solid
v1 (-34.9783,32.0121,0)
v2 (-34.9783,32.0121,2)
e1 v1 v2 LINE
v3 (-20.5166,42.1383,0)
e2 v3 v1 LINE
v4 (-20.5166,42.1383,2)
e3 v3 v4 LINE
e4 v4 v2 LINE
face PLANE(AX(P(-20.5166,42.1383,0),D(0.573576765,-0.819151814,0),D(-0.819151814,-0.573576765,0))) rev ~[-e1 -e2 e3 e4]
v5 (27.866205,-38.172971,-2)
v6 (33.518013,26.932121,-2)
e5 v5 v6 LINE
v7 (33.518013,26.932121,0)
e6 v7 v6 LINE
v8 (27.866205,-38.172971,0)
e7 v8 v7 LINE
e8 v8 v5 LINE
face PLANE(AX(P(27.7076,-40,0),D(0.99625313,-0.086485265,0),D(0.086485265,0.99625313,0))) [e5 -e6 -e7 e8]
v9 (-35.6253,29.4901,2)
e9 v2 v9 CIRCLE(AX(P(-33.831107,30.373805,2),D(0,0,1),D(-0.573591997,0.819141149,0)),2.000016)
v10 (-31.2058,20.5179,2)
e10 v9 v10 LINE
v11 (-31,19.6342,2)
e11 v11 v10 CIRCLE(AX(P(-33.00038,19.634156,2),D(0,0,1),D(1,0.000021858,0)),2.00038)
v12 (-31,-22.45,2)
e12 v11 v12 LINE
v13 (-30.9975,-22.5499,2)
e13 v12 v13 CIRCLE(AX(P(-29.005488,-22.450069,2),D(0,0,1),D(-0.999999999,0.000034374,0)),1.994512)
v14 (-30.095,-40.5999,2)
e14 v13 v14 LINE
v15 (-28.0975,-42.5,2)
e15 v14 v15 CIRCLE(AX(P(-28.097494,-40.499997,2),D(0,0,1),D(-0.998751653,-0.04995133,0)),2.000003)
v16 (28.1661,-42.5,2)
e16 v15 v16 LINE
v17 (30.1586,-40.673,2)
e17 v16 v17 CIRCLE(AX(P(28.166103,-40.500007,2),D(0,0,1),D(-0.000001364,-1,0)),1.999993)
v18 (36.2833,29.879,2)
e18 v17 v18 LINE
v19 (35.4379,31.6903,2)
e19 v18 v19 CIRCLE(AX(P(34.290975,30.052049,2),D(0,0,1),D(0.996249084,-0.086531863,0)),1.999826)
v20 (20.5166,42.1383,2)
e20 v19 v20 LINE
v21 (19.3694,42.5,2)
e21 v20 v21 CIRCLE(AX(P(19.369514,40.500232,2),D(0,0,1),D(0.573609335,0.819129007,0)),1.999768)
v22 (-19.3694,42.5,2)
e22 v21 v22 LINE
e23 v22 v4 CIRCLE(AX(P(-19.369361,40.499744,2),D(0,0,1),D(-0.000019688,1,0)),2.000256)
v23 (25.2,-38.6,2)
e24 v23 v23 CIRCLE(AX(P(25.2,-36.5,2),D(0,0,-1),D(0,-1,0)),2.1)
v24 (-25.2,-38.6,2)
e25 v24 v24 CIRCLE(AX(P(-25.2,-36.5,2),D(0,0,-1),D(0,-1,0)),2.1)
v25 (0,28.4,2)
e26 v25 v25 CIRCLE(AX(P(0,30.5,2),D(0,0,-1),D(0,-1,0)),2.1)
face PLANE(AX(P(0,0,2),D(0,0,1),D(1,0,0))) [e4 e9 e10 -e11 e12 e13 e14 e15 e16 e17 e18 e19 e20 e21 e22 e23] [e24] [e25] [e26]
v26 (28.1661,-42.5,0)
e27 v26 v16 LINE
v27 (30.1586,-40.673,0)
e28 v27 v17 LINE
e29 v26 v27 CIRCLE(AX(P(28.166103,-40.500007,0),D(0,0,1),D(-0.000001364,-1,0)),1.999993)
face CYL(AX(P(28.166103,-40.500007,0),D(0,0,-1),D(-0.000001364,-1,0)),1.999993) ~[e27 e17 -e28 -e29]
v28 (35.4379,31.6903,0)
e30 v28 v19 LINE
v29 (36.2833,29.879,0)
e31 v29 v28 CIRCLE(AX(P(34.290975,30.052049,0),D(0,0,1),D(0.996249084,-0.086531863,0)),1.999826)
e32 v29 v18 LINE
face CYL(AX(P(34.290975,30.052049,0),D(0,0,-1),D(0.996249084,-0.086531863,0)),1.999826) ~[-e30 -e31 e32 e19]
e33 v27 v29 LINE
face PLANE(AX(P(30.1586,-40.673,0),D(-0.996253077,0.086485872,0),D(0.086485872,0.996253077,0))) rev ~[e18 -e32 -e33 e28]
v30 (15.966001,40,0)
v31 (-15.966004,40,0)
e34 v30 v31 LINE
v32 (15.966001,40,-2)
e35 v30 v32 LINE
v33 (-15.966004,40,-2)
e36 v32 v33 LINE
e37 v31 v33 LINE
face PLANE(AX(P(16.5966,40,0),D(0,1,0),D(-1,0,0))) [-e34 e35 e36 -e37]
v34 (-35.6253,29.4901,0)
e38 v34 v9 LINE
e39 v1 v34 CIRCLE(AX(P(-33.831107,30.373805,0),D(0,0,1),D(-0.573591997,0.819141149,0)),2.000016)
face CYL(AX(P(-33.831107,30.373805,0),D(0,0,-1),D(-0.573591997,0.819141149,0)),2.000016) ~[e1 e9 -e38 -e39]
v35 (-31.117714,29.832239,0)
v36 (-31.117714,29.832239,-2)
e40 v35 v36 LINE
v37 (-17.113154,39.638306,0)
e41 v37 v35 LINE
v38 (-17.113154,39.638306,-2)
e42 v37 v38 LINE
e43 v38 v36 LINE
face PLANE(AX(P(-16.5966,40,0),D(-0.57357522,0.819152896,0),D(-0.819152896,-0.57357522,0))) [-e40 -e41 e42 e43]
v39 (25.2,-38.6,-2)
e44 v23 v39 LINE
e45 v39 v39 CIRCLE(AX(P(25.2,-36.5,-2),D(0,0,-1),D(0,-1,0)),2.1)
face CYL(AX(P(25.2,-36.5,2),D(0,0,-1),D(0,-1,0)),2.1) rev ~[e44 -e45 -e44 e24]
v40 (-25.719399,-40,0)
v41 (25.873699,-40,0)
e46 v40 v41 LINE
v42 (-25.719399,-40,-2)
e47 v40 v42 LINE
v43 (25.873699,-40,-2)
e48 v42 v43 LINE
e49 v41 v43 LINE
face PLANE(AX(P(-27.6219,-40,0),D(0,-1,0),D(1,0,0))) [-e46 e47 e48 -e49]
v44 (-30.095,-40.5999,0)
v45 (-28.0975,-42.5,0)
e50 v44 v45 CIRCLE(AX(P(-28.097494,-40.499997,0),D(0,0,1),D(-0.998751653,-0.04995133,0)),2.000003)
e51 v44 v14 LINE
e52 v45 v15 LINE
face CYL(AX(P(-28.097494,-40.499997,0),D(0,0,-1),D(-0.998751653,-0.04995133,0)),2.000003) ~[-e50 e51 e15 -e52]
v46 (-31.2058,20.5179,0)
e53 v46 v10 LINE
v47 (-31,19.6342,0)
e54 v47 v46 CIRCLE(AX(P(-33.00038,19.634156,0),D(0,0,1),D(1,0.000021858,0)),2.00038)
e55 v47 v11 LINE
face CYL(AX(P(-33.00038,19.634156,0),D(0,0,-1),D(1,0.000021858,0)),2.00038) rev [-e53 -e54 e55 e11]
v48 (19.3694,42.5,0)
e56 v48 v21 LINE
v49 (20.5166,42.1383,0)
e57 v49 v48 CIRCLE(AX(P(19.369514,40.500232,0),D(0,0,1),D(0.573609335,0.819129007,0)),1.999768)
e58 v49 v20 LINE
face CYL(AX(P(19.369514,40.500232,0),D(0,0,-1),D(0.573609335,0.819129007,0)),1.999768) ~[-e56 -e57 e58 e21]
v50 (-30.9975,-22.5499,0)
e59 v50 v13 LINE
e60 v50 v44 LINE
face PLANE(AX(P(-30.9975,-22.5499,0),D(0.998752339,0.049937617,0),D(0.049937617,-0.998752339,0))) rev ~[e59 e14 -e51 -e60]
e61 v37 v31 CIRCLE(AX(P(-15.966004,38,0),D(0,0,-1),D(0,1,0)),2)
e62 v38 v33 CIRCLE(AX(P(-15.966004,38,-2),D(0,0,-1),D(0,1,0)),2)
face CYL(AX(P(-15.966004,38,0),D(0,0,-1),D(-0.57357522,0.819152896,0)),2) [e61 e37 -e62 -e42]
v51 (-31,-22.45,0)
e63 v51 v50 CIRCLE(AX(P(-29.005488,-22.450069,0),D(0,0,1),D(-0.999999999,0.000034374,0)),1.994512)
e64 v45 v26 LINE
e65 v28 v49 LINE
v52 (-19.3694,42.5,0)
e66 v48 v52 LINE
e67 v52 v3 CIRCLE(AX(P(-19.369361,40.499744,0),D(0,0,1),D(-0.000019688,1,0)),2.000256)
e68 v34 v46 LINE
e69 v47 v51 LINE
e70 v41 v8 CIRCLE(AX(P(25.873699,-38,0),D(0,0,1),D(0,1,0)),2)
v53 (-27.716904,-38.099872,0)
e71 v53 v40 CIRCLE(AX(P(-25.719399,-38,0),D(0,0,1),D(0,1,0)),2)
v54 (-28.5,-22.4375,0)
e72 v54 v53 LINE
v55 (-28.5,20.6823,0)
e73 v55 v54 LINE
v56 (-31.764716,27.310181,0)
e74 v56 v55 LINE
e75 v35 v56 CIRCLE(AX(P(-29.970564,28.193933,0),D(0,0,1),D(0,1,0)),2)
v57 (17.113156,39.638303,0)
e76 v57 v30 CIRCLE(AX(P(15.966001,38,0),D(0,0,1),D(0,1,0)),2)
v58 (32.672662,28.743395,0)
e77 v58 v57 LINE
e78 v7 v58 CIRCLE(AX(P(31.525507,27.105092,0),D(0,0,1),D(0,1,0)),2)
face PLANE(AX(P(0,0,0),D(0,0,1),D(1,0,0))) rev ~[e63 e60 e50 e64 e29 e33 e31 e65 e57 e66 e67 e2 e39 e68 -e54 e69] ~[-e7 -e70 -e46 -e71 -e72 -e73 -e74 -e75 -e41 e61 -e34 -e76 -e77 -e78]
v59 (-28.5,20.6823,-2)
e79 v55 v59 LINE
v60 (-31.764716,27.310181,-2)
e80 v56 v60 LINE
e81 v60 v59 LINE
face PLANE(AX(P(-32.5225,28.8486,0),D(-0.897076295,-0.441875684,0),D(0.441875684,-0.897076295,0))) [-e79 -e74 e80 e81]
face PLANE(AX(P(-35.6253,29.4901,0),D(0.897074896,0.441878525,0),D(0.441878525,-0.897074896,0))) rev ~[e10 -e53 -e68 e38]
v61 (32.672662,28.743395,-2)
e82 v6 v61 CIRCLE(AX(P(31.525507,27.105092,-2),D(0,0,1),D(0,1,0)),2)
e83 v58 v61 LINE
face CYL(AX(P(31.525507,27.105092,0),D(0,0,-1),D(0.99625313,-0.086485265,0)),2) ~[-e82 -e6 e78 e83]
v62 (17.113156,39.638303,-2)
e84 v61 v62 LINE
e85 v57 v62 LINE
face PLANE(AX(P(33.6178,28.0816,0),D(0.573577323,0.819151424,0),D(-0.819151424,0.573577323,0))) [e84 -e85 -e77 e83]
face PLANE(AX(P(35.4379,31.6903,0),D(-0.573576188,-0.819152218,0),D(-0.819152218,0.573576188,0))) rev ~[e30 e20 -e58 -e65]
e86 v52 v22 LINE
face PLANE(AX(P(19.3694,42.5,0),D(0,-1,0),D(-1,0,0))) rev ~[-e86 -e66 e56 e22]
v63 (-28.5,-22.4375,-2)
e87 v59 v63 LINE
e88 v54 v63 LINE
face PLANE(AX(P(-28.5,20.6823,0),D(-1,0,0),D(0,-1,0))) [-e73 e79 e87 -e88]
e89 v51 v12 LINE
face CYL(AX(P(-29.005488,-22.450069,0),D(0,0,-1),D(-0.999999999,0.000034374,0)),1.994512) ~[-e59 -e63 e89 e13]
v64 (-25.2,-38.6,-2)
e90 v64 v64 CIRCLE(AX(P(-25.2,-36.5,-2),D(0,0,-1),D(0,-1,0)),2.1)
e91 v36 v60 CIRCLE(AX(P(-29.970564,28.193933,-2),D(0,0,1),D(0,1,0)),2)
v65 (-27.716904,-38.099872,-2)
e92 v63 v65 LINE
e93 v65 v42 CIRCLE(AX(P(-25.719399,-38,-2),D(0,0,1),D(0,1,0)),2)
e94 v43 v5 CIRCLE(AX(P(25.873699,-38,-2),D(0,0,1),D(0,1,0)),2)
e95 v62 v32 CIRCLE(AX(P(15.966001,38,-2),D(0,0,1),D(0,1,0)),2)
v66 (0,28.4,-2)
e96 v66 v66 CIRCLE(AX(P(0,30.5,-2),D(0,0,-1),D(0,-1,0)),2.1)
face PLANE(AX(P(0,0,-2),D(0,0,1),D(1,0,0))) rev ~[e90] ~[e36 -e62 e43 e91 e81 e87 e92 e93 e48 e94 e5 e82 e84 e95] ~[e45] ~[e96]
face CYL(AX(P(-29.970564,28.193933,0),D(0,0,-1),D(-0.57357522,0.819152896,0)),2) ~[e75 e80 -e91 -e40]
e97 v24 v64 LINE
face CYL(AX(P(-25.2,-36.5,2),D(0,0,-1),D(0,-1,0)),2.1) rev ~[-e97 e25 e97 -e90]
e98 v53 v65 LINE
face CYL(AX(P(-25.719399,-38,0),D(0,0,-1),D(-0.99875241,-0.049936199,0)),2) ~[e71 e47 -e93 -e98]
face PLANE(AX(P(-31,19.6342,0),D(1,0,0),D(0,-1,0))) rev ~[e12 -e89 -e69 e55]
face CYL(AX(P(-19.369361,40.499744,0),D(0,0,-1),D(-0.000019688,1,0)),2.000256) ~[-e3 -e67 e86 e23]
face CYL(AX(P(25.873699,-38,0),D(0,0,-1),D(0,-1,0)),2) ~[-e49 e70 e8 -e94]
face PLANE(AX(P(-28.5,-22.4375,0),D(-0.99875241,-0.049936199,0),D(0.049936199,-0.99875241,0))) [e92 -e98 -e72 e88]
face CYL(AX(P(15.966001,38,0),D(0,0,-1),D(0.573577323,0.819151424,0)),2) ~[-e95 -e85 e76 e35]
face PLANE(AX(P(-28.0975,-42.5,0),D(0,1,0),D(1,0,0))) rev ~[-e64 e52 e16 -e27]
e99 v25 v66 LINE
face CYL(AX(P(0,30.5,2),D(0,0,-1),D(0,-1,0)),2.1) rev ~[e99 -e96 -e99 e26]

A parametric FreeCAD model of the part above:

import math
import FreeCAD as App
import Part
import Sketcher

V = App.Vector
Q = App.Units.Quantity


def edges_at(feature, points):
    """Names of the edges that pass closest to the given points."""
    edges = feature.Shape.Edges
    near = lambda p: min(range(len(edges)), key=lambda i: edges[i].distToShape(Part.Vertex(*p))[0])
    return sorted({f"Edge{near(p) + 1}" for p in points})


def add_polygon(sketch, points):
    """Adds a closed chain of lines whose ends are joined by coincident constraints."""
    first, n = sketch.GeometryCount, len(points)
    for a, b in zip(points, points[1:] + points[:1]):
        sketch.addGeometry(Part.LineSegment(App.Vector(*a, 0), App.Vector(*b, 0)), False)
    for i in range(n):
        sketch.addConstraint(Sketcher.Constraint("Coincident", first + i, 2, first + (i + 1) % n, 1))

doc = App.newDocument("Part")
body = doc.addObject("PartDesign::Body", "Body")

# Sketch on XY plane
sketch1 = body.newObject("Sketcher::SketchObject", "Sketch")
sketch1.AttachmentSupport = (doc.getObject("XY_Plane"), [""])
sketch1.MapMode = "FlatFace"
add_polygon(sketch1, [(-17, 40), (-33, 29), (-28, 21), (-28, -22), (-28, -40), (28, -40), (34, 28), (17, 40)])  # lines 0-7
sketch1.addConstraint(Sketcher.Constraint("Vertical", 2))
sketch1.addConstraint(Sketcher.Constraint("Horizontal", 4))
sketch1.addConstraint(Sketcher.Constraint("Horizontal", 7))
sketch1.addConstraint(Sketcher.Constraint("Angle", 0, Q("-145 deg")))
sketch1.addConstraint(Sketcher.Constraint("Angle", 6, Q("145 deg")))
sketch1.addConstraint(Sketcher.Constraint("DistanceY", 3, 2, -1, 1, Q("40 mm")))
sketch1.addConstraint(Sketcher.Constraint("DistanceY", -1, 1, 6, 2, Q("40 mm")))
sketch1.addConstraint(Sketcher.Constraint("DistanceX", 1, 2, -1, 1, Q("28.5 mm")))
sketch1.addConstraint(Sketcher.Constraint("DistanceX", 0, 2, 4, 2, Q("60.23 mm")))
sketch1.addConstraint(Sketcher.Constraint("Distance", 0, Q("19.442 mm")))
sketch1.addConstraint(Sketcher.Constraint("Distance", 6, Q("20.779 mm")))
sketch1.addConstraint(Sketcher.Constraint("DistanceX", 4, 1, 4, 2, Q("55.3295 mm")))
sketch1.addConstraint(Sketcher.Constraint("DistanceX", 7, 2, 7, 1, Q("33.1932 mm")))
sketch1.addConstraint(Sketcher.Constraint("DistanceY", 2, 2, 2, 1, Q("43.1198 mm")))
sketch1.addConstraint(Sketcher.Constraint("DistanceX", 3, 2, -1, 1, Q("27.622 mm")))
sketch1.addConstraint(Sketcher.Constraint("DistanceY", 2, 2, 0, 2, Q("51.286 mm")))
pad1 = body.newObject("PartDesign::Pad", "Pad")
pad1.Profile = sketch1
pad1.Length = 2
pad1.Reversed = True

# Sketch on XY plane
sketch2 = body.newObject("Sketcher::SketchObject", "Sketch001")
sketch2.AttachmentSupport = (doc.getObject("XY_Plane"), [""])
sketch2.MapMode = "FlatFace"
sketch2.addGeometry(Part.ArcOfCircle(Part.Circle(V(-29.005488, -22.450069, 0), V(0, 0, 1), 1.994512), math.radians(179.998031), math.radians(182.869028)), False)
sketch2.addGeometry(Part.LineSegment(V(-30.9975, -22.5499, 0), V(-30.095, -40.5999, 0)), False)
sketch2.addGeometry(Part.ArcOfCircle(Part.Circle(V(-28.0975, -40.5, 0), V(0, 0, 1), 1.999997), math.radians(-177.136879), math.radians(-90)), False)
sketch2.addGeometry(Part.LineSegment(V(-28.0975, -42.5, 0), V(28.1661, -42.5, 0)), False)
sketch2.addGeometry(Part.ArcOfCircle(Part.Circle(V(28.1661, -40.5, 0), V(0, 0, 1), 2), math.radians(-90), math.radians(-4.962295)), False)
sketch2.addGeometry(Part.LineSegment(V(30.1586, -40.673, 0), V(36.2833, 29.879, 0)), False)
sketch2.addGeometry(Part.ArcOfCircle(Part.Circle(V(34.2907, 30.052, 0), V(0, 0, 1), 2.000096), math.radians(-4.962048), math.radians(54.998827)), False)
sketch2.addGeometry(Part.LineSegment(V(35.4379, 31.6903, 0), V(20.5166, 42.1383, 0)), False)
sketch2.addGeometry(Part.ArcOfCircle(Part.Circle(V(19.3694, 40.5, 0), V(0, 0, 1), 2.000024), math.radians(54.998827), math.radians(90)), False)
sketch2.addGeometry(Part.LineSegment(V(19.3694, 42.5, 0), V(-19.3694, 42.5, 0)), False)
sketch2.addGeometry(Part.ArcOfCircle(Part.Circle(V(-19.3694, 40.5, 0), V(0, 0, 1), 2), math.radians(90), math.radians(125.001173)), False)
sketch2.addGeometry(Part.LineSegment(V(-20.5166, 42.1383, 0), V(-34.9783, 32.0121, 0)), False)
sketch2.addGeometry(Part.ArcOfCircle(Part.Circle(V(-33.8311, 30.3738, 0), V(0, 0, 1), 2.000024), math.radians(125.001173), math.radians(206.221698)), False)
sketch2.addGeometry(Part.LineSegment(V(-35.6253, 29.4901, 0), V(-31.2058, 20.5179, 0)), False)
sketch2.addGeometry(Part.ArcOfCircle(Part.Circle(V(-33, 19.6342, 0), V(0, 0, 1), 2), math.radians(0), math.radians(26.221698)), False)
sketch2.addGeometry(Part.LineSegment(V(-31, 19.6342, 0), V(-31, -22.45, 0)), False)
sketch2.addConstraint(Sketcher.Constraint("Coincident", 0, 2, 1, 1))
sketch2.addConstraint(Sketcher.Constraint("Coincident", 1, 2, 2, 1))
sketch2.addConstraint(Sketcher.Constraint("Coincident", 2, 2, 3, 1))
sketch2.addConstraint(Sketcher.Constraint("Coincident", 3, 2, 4, 1))
sketch2.addConstraint(Sketcher.Constraint("Coincident", 4, 2, 5, 1))
sketch2.addConstraint(Sketcher.Constraint("Coincident", 5, 2, 6, 1))
sketch2.addConstraint(Sketcher.Constraint("Coincident", 6, 2, 7, 1))
sketch2.addConstraint(Sketcher.Constraint("Coincident", 7, 2, 8, 1))
sketch2.addConstraint(Sketcher.Constraint("Coincident", 8, 2, 9, 1))
sketch2.addConstraint(Sketcher.Constraint("Coincident", 9, 2, 10, 1))
sketch2.addConstraint(Sketcher.Constraint("Coincident", 10, 2, 11, 1))
sketch2.addConstraint(Sketcher.Constraint("Coincident", 11, 2, 12, 1))
sketch2.addConstraint(Sketcher.Constraint("Coincident", 12, 2, 13, 1))
sketch2.addConstraint(Sketcher.Constraint("Coincident", 13, 2, 14, 2))
sketch2.addConstraint(Sketcher.Constraint("Coincident", 14, 1, 15, 1))
sketch2.addConstraint(Sketcher.Constraint("Coincident", 15, 2, 0, 1))
sketch2.addConstraint(Sketcher.Constraint("Horizontal", 3))
sketch2.addConstraint(Sketcher.Constraint("Horizontal", 9))
sketch2.addConstraint(Sketcher.Constraint("Vertical", 15))
sketch2.addConstraint(Sketcher.Constraint("Radius", 2, Q("2 mm")))
sketch2.addConstraint(Sketcher.Constraint("Radius", 4, Q("2 mm")))
sketch2.addConstraint(Sketcher.Constraint("Radius", 6, Q("2 mm")))
sketch2.addConstraint(Sketcher.Constraint("Radius", 8, Q("2 mm")))
sketch2.addConstraint(Sketcher.Constraint("Radius", 10, Q("2 mm")))
sketch2.addConstraint(Sketcher.Constraint("Radius", 12, Q("2 mm")))
sketch2.addConstraint(Sketcher.Constraint("Radius", 14, Q("2 mm")))
sketch2.addConstraint(Sketcher.Constraint("DistanceX", 14, 3, -1, 1, Q("33 mm")))
sketch2.addConstraint(Sketcher.Constraint("DistanceY", 4, 3, 8, 3, Q("81 mm")))
sketch2.addConstraint(Sketcher.Constraint("DistanceY", 2, 3, -1, 1, Q("40.5 mm")))
sketch2.addConstraint(Sketcher.Constraint("DistanceY", 1, 2, -1, 1, Q("40.6 mm")))
sketch2.addConstraint(Sketcher.Constraint("Radius", 0, Q("1.9945 mm")))
sketch2.addConstraint(Sketcher.Constraint("DistanceX", 0, 2, 2, 3, Q("2.9 mm")))
sketch2.addConstraint(Sketcher.Constraint("DistanceX", 0, 2, 2, 2, Q("2.9 mm")))
sketch2.addConstraint(Sketcher.Constraint("DistanceY", 0, 2, 15, 2, Q("0.1 mm")))
sketch2.addConstraint(Sketcher.Constraint("DistanceY", 0, 3, -1, 1, Q("22.45 mm")))
sketch2.addConstraint(Sketcher.Constraint("DistanceY", 0, 2, -1, 1, Q("22.55 mm")))
sketch2.addConstraint(Sketcher.Constraint("DistanceY", -1, 1, 12, 2, Q("29.49 mm")))
sketch2.addConstraint(Sketcher.Constraint("DistanceX", 10, 3, 6, 3, Q("53.66 mm")))
sketch2.addConstraint(Sketcher.Constraint("DistanceX", 3, 1, 3, 2, Q("56.2636 mm")))
sketch2.addConstraint(Sketcher.Constraint("DistanceX", 9, 2, 9, 1, Q("38.7388 mm")))
sketch2.addConstraint(Sketcher.Constraint("DistanceY", 15, 2, 15, 1, Q("42.0842 mm")))
sketch2.addConstraint(Sketcher.Constraint("DistanceX", -1, 1, 4, 3, Q("28.166 mm")))
sketch2.addConstraint(Sketcher.Constraint("DistanceY", -1, 1, 6, 3, Q("30.052 mm")))
sketch2.addConstraint(Sketcher.Constraint("DistanceX", 12, 3, -1, 1, Q("33.831 mm")))
sketch2.addConstraint(Sketcher.Constraint("DistanceY", 4, 2, -1, 1, Q("40.673 mm")))
sketch2.addConstraint(Sketcher.Constraint("DistanceY", -1, 1, 5, 2, Q("29.879 mm")))
sketch2.addConstraint(Sketcher.Constraint("DistanceX", -1, 1, 6, 2, Q("35.438 mm")))
sketch2.addConstraint(Sketcher.Constraint("DistanceY", -1, 1, 11, 2, Q("32.012 mm")))
sketch2.addConstraint(Sketcher.Constraint("DistanceY", -1, 1, 13, 2, Q("20.518 mm")))
sketch2.addConstraint(Sketcher.Constraint("DistanceX", 0, 3, 8, 3, Q("48.375 mm")))
sketch2.addConstraint(Sketcher.Constraint("DistanceX", 0, 3, 10, 3, Q("9.636 mm")))
sketch2.addConstraint(Sketcher.Constraint("DistanceY", 0, 2, 14, 3, Q("42.184 mm")))
sketch2.addConstraint(Sketcher.Constraint("DistanceY", 6, 2, 7, 2, Q("10.448 mm")))
sketch2.addConstraint(Sketcher.Constraint("DistanceX", 8, 2, 5, 2, Q("16.914 mm")))
sketch2.addConstraint(Sketcher.Constraint("DistanceY", 14, 3, 10, 2, Q("22.504 mm")))
sketch2.addConstraint(Sketcher.Constraint("DistanceX", 11, 2, 10, 3, Q("15.609 mm")))
pad2 = body.newObject("PartDesign::Pad", "Pad001")
pad2.Profile = sketch2
pad2.Length = 2

# Sketch on XY plane
sketch3 = body.newObject("Sketcher::SketchObject", "Sketch002")
sketch3.AttachmentSupport = (doc.getObject("XY_Plane"), [""])
sketch3.MapMode = "FlatFace"
sketch3.AttachmentOffset = App.Placement(V(0, 0, 2), App.Rotation())
sketch3.addGeometry(Part.Circle(V(0, 30.5, 0), V(0, 0, 1), 2.1), False)
sketch3.addGeometry(Part.Circle(V(25.2, -36.5, 0), V(0, 0, 1), 2.1), False)
sketch3.addGeometry(Part.Circle(V(-25.2, -36.5, 0), V(0, 0, 1), 2.1), False)
sketch3.addConstraint(Sketcher.Constraint("Equal", 0, 1))
sketch3.addConstraint(Sketcher.Constraint("Equal", 1, 2))
sketch3.addConstraint(Sketcher.Constraint("Symmetric", 1, 3, 2, 3, -2))
sketch3.addConstraint(Sketcher.Constraint("PointOnObject", 0, 3, -2))
sketch3.addConstraint(Sketcher.Constraint("Diameter", 0, Q("4.2 mm")))
sketch3.addConstraint(Sketcher.Constraint("DistanceY", 1, 3, 0, 3, Q("67 mm")))
sketch3.addConstraint(Sketcher.Constraint("DistanceY", -1, 1, 0, 3, Q("30.5 mm")))
sketch3.addConstraint(Sketcher.Constraint("DistanceX", -1, 1, 1, 3, Q("25.2 mm")))
doc.recompute()
hole = body.newObject("PartDesign::Hole", "Hole")
hole.Profile = sketch3
hole.ThreadType = "None"
hole.Diameter = 4.2
hole.DepthType = "ThroughAll"
doc.recompute()

fillet = body.newObject("PartDesign::Fillet", "Fillet")
fillet.Base = (hole, edges_at(hole, [
    (27.708, -40, -1),
    (-27.622, -40, -1),
    (33.618, 28.082, -1),
    (16.597, 40, -1),
    (-32.523, 28.849, -1),
    (-16.597, 40, -1),
]))
fillet.Radius = 2

doc.recompute()
